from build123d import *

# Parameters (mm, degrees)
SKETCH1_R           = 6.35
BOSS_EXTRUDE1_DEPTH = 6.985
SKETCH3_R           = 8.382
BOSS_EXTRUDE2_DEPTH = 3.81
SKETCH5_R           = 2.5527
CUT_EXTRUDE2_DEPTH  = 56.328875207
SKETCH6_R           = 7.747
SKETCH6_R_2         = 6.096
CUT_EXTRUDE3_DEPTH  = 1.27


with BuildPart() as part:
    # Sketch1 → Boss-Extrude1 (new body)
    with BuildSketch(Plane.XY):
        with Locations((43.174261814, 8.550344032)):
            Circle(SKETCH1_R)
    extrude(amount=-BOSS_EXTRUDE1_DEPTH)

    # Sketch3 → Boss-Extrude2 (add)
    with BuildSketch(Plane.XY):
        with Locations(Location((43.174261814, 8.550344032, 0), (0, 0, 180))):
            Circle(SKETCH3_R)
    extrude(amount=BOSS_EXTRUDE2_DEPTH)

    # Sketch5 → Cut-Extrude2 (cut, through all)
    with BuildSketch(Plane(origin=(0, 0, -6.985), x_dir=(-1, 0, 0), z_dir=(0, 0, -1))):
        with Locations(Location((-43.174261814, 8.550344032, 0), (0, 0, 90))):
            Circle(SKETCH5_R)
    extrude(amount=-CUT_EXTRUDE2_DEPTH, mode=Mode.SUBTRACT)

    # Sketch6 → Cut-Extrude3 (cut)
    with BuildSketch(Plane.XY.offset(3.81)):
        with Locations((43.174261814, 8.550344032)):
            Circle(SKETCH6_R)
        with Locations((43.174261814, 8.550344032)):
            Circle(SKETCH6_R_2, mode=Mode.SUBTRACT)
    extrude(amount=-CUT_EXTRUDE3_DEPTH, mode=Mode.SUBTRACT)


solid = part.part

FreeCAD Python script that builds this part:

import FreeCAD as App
import Part
import Sketcher

V = App.Vector
Q = App.Units.Quantity

doc = App.newDocument("Part")
body = doc.addObject("PartDesign::Body", "Body")

# Sketch on XY plane
sketch1 = body.newObject("Sketcher::SketchObject", "Sketch")
sketch1.AttachmentSupport = (doc.getObject("XY_Plane"), [""])
sketch1.MapMode = "FlatFace"
sketch1.addGeometry(Part.Circle(V(43, 9, 0), V(0, 0, 1), 6), False)
sketch1.addConstraint(Sketcher.Constraint("Diameter", 0, Q("0.5 in")))
sketch1.addConstraint(Sketcher.Constraint("DistanceX", -1, 1, 0, 3, Q("43.174262 mm")))
sketch1.addConstraint(Sketcher.Constraint("DistanceY", -1, 1, 0, 3, Q("8.550344 mm")))
pad1 = body.newObject("PartDesign::Pad", "Pad")
pad1.Profile = sketch1
pad1.Length = Q("0.275 in")
pad1.Reversed = True

# Sketch on XY plane
sketch2 = body.newObject("Sketcher::SketchObject", "Sketch001")
sketch2.AttachmentSupport = (doc.getObject("XY_Plane"), [""])
sketch2.MapMode = "FlatFace"
sketch2.addGeometry(Part.Circle(V(43, 9, 0), V(0, 0, 1), 8), False)
sketch2.addConstraint(Sketcher.Constraint("Diameter", 0, Q("0.66 in")))
sketch2.addConstraint(Sketcher.Constraint("DistanceX", -1, 1, 0, 3, Q("43.174262 mm")))
sketch2.addConstraint(Sketcher.Constraint("DistanceY", -1, 1, 0, 3, Q("8.550344 mm")))
pad2 = body.newObject("PartDesign::Pad", "Pad001")
pad2.Profile = sketch2
pad2.Length = Q("0.15 in")

# Sketch on XY plane
sketch3 = body.newObject("Sketcher::SketchObject", "Sketch002")
sketch3.AttachmentSupport = (doc.getObject("XY_Plane"), [""])
sketch3.MapMode = "FlatFace"
sketch3.AttachmentOffset = App.Placement(V(0, 0, -0.275 * 25.4), App.Rotation())
sketch3.addGeometry(Part.Circle(V(43.2, 8.6, 0), V(0, 0, 1), 2.6), False)
sketch3.addConstraint(Sketcher.Constraint("Diameter", 0, Q("0.201 in")))
sketch3.addConstraint(Sketcher.Constraint("DistanceX", -1, 1, 0, 3, Q("43.174262 mm")))
sketch3.addConstraint(Sketcher.Constraint("DistanceY", -1, 1, 0, 3, Q("8.550344 mm")))
pocket1 = body.newObject("PartDesign::Pocket", "Pocket")
pocket1.Profile = sketch3
pocket1.Type = "ThroughAll"
pocket1.Reversed = True

# Sketch on XY plane
sketch4 = body.newObject("Sketcher::SketchObject", "Sketch003")
sketch4.AttachmentSupport = (doc.getObject("XY_Plane"), [""])
sketch4.MapMode = "FlatFace"
sketch4.AttachmentOffset = App.Placement(V(0, 0, 0.15 * 25.4), App.Rotation())
sketch4.addGeometry(Part.Circle(V(43, 9, 0), V(0, 0, 1), 8), False)
sketch4.addGeometry(Part.Circle(V(43, 9, 0), V(0, 0, 1), 6), False)
sketch4.addConstraint(Sketcher.Constraint("Coincident", 1, 3, 0, 3))
sketch4.addConstraint(Sketcher.Constraint("Diameter", 0, Q("0.61 in")))
sketch4.addConstraint(Sketcher.Constraint("Diameter", 1, Q("0.48 in")))
sketch4.addConstraint(Sketcher.Constraint("DistanceX", -1, 1, 0, 3, Q("43.174262 mm")))
sketch4.addConstraint(Sketcher.Constraint("DistanceY", -1, 1, 0, 3, Q("8.550344 mm")))
pocket2 = body.newObject("PartDesign::Pocket", "Pocket001")
pocket2.Profile = sketch4
pocket2.Length = Q("0.05 in")

doc.recompute()
